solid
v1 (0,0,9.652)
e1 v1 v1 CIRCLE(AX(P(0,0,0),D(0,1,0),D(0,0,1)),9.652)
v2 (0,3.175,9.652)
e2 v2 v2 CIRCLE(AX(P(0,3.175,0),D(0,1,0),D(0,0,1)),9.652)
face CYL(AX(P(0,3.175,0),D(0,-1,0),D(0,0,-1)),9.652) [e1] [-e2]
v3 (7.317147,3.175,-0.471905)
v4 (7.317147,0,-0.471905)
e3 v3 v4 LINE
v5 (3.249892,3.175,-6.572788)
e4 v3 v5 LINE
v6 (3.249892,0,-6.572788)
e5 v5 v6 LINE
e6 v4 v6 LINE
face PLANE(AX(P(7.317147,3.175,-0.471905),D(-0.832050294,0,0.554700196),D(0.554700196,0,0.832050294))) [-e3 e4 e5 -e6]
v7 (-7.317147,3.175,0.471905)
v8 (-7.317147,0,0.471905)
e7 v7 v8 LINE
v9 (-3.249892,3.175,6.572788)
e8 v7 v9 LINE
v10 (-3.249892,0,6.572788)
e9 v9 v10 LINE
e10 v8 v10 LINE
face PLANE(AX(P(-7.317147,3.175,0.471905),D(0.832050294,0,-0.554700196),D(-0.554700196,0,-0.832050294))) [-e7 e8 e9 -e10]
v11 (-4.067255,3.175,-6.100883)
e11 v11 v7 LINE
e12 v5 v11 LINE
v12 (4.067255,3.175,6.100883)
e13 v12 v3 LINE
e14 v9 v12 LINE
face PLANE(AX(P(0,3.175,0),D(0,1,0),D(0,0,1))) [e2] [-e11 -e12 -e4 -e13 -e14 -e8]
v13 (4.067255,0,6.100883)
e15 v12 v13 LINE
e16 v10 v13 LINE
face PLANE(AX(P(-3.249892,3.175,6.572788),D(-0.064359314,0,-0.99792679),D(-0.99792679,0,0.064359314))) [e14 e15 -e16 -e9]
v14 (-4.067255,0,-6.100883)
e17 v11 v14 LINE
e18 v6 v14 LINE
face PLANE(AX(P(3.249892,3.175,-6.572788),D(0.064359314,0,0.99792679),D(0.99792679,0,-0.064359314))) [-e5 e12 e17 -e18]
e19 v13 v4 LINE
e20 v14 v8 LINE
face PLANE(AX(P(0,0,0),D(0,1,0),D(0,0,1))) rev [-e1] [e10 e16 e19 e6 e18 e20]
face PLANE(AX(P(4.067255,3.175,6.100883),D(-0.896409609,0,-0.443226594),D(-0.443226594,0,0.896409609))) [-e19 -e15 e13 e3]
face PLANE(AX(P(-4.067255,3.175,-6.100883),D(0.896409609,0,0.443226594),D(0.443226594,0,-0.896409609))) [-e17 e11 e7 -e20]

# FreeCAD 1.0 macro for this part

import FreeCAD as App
import Part
import Sketcher
Q = App.Units.Quantity

doc = App.newDocument("Part")
body = doc.addObject("PartDesign::Body", "Body")

# Sketch on XZ plane
sketch1 = body.newObject("Sketcher::SketchObject", "Sketch")
sketch1.AttachmentSupport = (doc.getObject("XZ_Plane"), [""])
sketch1.MapMode = "FlatFace"
sketch1.addGeometry(Part.Circle(App.Vector(0, 0, 0), App.Vector(0, 0, 1), 10), False)
sketch1.addGeometry(Part.LineSegment(App.Vector(7, 0, 0), App.Vector(4, 6, 0)), False)
sketch1.addGeometry(Part.LineSegment(App.Vector(4, 6, 0), App.Vector(-3, 7, 0)), False)
sketch1.addGeometry(Part.LineSegment(App.Vector(-3, 7, 0), App.Vector(-7, 0, 0)), False)
sketch1.addGeometry(Part.LineSegment(App.Vector(-7, 0, 0), App.Vector(-4, -6, 0)), False)
sketch1.addGeometry(Part.LineSegment(App.Vector(-4, -6, 0), App.Vector(3, -7, 0)), False)
sketch1.addGeometry(Part.LineSegment(App.Vector(3, -7, 0), App.Vector(7, 0, 0)), False)
sketch1.addConstraint(Sketcher.Constraint("Coincident", 1, 2, 2, 1))
sketch1.addConstraint(Sketcher.Constraint("Coincident", 2, 2, 3, 1))
sketch1.addConstraint(Sketcher.Constraint("Coincident", 3, 2, 4, 1))
sketch1.addConstraint(Sketcher.Constraint("Coincident", 4, 2, 5, 1))
sketch1.addConstraint(Sketcher.Constraint("Coincident", 5, 2, 6, 1))
sketch1.addConstraint(Sketcher.Constraint("Coincident", 6, 2, 1, 1))
sketch1.addConstraint(Sketcher.Constraint("Coincident", 0, 3, -1, 1))
sketch1.addConstraint(Sketcher.Constraint("Symmetric", 1, 2, 4, 2, -1, 1))
sketch1.addConstraint(Sketcher.Constraint("Symmetric", 2, 2, 5, 2, -1, 1))
sketch1.addConstraint(Sketcher.Constraint("Symmetric", 3, 2, 6, 2, -1, 1))
sketch1.addConstraint(Sketcher.Constraint("Equal", 1, 2))
sketch1.addConstraint(Sketcher.Constraint("Equal", 2, 3))
sketch1.addConstraint(Sketcher.Constraint("Diameter", 0, Q("0.76 in")))
sketch1.addConstraint(Sketcher.Constraint("Distance", 1, 7.332348))
sketch1.addConstraint(Sketcher.Constraint("DistanceX", 2, 2, -1, 1, 3.249892))
sketch1.addConstraint(Sketcher.Constraint("DistanceX", 3, 2, 4, 2, 3.249892))
sketch1.addConstraint(Sketcher.Constraint("DistanceY", 4, 2, 2, 2, 12.67367))
pad1 = body.newObject("PartDesign::Pad", "Pad")
pad1.Profile = sketch1
pad1.Length = Q("0.125 in")
pad1.Reversed = True

doc.recompute()
